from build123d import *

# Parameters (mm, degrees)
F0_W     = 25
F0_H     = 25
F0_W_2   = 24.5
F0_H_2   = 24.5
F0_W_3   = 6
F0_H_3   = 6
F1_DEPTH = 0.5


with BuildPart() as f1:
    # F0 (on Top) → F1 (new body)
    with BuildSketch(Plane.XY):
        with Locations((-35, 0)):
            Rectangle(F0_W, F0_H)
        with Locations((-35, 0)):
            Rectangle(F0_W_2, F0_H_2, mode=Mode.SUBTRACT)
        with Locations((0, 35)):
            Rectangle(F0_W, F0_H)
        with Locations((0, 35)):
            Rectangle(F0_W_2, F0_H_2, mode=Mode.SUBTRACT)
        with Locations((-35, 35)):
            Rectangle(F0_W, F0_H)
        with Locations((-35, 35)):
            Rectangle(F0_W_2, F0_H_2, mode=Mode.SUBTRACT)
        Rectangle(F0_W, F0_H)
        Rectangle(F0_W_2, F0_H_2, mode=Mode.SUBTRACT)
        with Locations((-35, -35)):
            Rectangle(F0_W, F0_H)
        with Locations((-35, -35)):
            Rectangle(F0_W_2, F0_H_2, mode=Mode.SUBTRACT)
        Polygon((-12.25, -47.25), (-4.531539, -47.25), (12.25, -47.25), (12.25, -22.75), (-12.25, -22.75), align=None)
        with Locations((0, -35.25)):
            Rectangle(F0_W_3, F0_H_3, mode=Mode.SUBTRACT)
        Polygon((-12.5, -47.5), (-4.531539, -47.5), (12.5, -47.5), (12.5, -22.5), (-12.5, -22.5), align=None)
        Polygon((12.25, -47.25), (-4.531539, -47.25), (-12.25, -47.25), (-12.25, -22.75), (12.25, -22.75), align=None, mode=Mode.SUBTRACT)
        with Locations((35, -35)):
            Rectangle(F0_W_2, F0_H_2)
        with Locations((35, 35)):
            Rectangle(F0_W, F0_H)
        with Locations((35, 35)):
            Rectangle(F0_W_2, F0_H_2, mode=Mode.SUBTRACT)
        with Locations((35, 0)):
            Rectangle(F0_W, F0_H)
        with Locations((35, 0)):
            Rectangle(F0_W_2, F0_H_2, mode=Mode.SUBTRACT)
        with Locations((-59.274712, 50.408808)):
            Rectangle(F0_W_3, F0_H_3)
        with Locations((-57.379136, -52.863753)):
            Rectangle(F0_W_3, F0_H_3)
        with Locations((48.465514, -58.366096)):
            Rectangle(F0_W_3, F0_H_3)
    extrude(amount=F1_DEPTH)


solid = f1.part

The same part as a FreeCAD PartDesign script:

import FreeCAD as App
import Part
import Sketcher
from FreeCAD import Vector


def add_polygon(sketch, points):
    """Adds a closed chain of lines whose ends are joined by coincident constraints."""
    first, n = sketch.GeometryCount, len(points)
    for a, b in zip(points, points[1:] + points[:1]):
        sketch.addGeometry(Part.LineSegment(App.Vector(*a, 0), App.Vector(*b, 0)), False)
    for i in range(n):
        sketch.addConstraint(Sketcher.Constraint("Coincident", first + i, 2, first + (i + 1) % n, 1))

doc = App.newDocument("Part")
body = doc.addObject("PartDesign::Body", "Body")
body.AllowCompound = True

# Sketch on XY plane
sketch1 = body.newObject("Sketcher::SketchObject", "Sketch")
sketch1.AttachmentSupport = (doc.getObject("XY_Plane"), [""])
sketch1.MapMode = "FlatFace"
add_polygon(sketch1, [(-48, 12), (-48, -12), (-22, -12), (-22, 12)])  # lines 0-3
add_polygon(sketch1, [(-23, -12), (-47, -12), (-47, 12), (-23, 12)])  # lines 4-7
add_polygon(sketch1, [(-12, 48), (-12, 22), (12, 22), (12, 48)])  # lines 8-11
add_polygon(sketch1, [(12, 23), (-12, 23), (-12, 47), (12, 47)])  # lines 12-15
add_polygon(sketch1, [(-48, 48), (-48, 22), (-22, 22), (-22, 48)])  # lines 16-19
add_polygon(sketch1, [(-23, 23), (-47, 23), (-47, 47), (-23, 47)])  # lines 20-23
add_polygon(sketch1, [(-12, 12), (-12, -12), (12, -12), (12, 12)])  # lines 24-27
add_polygon(sketch1, [(12, -12), (-12, -12), (-12, 12), (12, 12)])  # lines 28-31
add_polygon(sketch1, [(-48, -22), (-48, -48), (-22, -48), (-22, -22)])  # lines 32-35
add_polygon(sketch1, [(-23, -47), (-47, -47), (-47, -23), (-23, -23)])  # lines 36-39
add_polygon(sketch1, [(-12, -48), (12, -48), (12, -22), (-12, -22)])  # lines 40-43
add_polygon(sketch1, [(12, -23), (12, -47), (-12, -47), (-12, -23)])  # lines 44-47
add_polygon(sketch1, [(23, -23), (23, -47), (47, -47), (47, -23)])  # lines 48-51
add_polygon(sketch1, [(22, 48), (22, 22), (48, 22), (48, 48)])  # lines 52-55
add_polygon(sketch1, [(47, 23), (23, 23), (23, 47), (47, 47)])  # lines 56-59
add_polygon(sketch1, [(22, 12), (22, -12), (48, -12), (48, 12)])  # lines 60-63
add_polygon(sketch1, [(47, -12), (23, -12), (23, 12), (47, 12)])  # lines 64-67
add_polygon(sketch1, [(-62, 53), (-62, 47), (-56, 47), (-56, 53)])  # lines 68-71
add_polygon(sketch1, [(-60, -50), (-60, -56), (-54, -56), (-54, -50)])  # lines 72-75
add_polygon(sketch1, [(45, -55), (45, -61), (51, -61), (51, -55)])  # lines 76-79
sketch1.addConstraint(Sketcher.Constraint("Vertical", 0))
sketch1.addConstraint(Sketcher.Constraint("Horizontal", 1))
sketch1.addConstraint(Sketcher.Constraint("Vertical", 2))
sketch1.addConstraint(Sketcher.Constraint("Horizontal", 3))
sketch1.addConstraint(Sketcher.Constraint("Horizontal", 4))
sketch1.addConstraint(Sketcher.Constraint("Vertical", 5))
sketch1.addConstraint(Sketcher.Constraint("Horizontal", 6))
sketch1.addConstraint(Sketcher.Constraint("Vertical", 7))
sketch1.addConstraint(Sketcher.Constraint("Vertical", 8))
sketch1.addConstraint(Sketcher.Constraint("Horizontal", 9))
sketch1.addConstraint(Sketcher.Constraint("Vertical", 10))
sketch1.addConstraint(Sketcher.Constraint("Horizontal", 11))
sketch1.addConstraint(Sketcher.Constraint("Horizontal", 12))
sketch1.addConstraint(Sketcher.Constraint("Vertical", 13))
sketch1.addConstraint(Sketcher.Constraint("Horizontal", 14))
sketch1.addConstraint(Sketcher.Constraint("Vertical", 15))
sketch1.addConstraint(Sketcher.Constraint("Vertical", 16))
sketch1.addConstraint(Sketcher.Constraint("Horizontal", 17))
sketch1.addConstraint(Sketcher.Constraint("Vertical", 18))
sketch1.addConstraint(Sketcher.Constraint("Horizontal", 19))
sketch1.addConstraint(Sketcher.Constraint("Horizontal", 20))
sketch1.addConstraint(Sketcher.Constraint("Vertical", 21))
sketch1.addConstraint(Sketcher.Constraint("Horizontal", 22))
sketch1.addConstraint(Sketcher.Constraint("Vertical", 23))
sketch1.addConstraint(Sketcher.Constraint("Vertical", 24))
sketch1.addConstraint(Sketcher.Constraint("Horizontal", 25))
sketch1.addConstraint(Sketcher.Constraint("Vertical", 26))
sketch1.addConstraint(Sketcher.Constraint("Horizontal", 27))
sketch1.addConstraint(Sketcher.Constraint("Horizontal", 28))
sketch1.addConstraint(Sketcher.Constraint("Vertical", 29))
sketch1.addConstraint(Sketcher.Constraint("Horizontal", 30))
sketch1.addConstraint(Sketcher.Constraint("Vertical", 31))
sketch1.addConstraint(Sketcher.Constraint("Vertical", 32))
sketch1.addConstraint(Sketcher.Constraint("Horizontal", 33))
sketch1.addConstraint(Sketcher.Constraint("Vertical", 34))
sketch1.addConstraint(Sketcher.Constraint("Horizontal", 35))
sketch1.addConstraint(Sketcher.Constraint("Horizontal", 36))
sketch1.addConstraint(Sketcher.Constraint("Vertical", 37))
sketch1.addConstraint(Sketcher.Constraint("Horizontal", 38))
sketch1.addConstraint(Sketcher.Constraint("Vertical", 39))
sketch1.addConstraint(Sketcher.Constraint("Horizontal", 40))
sketch1.addConstraint(Sketcher.Constraint("Vertical", 41))
sketch1.addConstraint(Sketcher.Constraint("Horizontal", 42))
sketch1.addConstraint(Sketcher.Constraint("Vertical", 43))
sketch1.addConstraint(Sketcher.Constraint("Vertical", 44))
sketch1.addConstraint(Sketcher.Constraint("Horizontal", 45))
sketch1.addConstraint(Sketcher.Constraint("Vertical", 46))
sketch1.addConstraint(Sketcher.Constraint("Horizontal", 47))
sketch1.addConstraint(Sketcher.Constraint("Vertical", 48))
sketch1.addConstraint(Sketcher.Constraint("Horizontal", 49))
sketch1.addConstraint(Sketcher.Constraint("Vertical", 50))
sketch1.addConstraint(Sketcher.Constraint("Horizontal", 51))
sketch1.addConstraint(Sketcher.Constraint("Vertical", 52))
sketch1.addConstraint(Sketcher.Constraint("Horizontal", 53))
sketch1.addConstraint(Sketcher.Constraint("Vertical", 54))
sketch1.addConstraint(Sketcher.Constraint("Horizontal", 55))
sketch1.addConstraint(Sketcher.Constraint("Horizontal", 56))
sketch1.addConstraint(Sketcher.Constraint("Vertical", 57))
sketch1.addConstraint(Sketcher.Constraint("Horizontal", 58))
sketch1.addConstraint(Sketcher.Constraint("Vertical", 59))
sketch1.addConstraint(Sketcher.Constraint("Vertical", 60))
sketch1.addConstraint(Sketcher.Constraint("Horizontal", 61))
sketch1.addConstraint(Sketcher.Constraint("Vertical", 62))
sketch1.addConstraint(Sketcher.Constraint("Horizontal", 63))
sketch1.addConstraint(Sketcher.Constraint("Horizontal", 64))
sketch1.addConstraint(Sketcher.Constraint("Vertical", 65))
sketch1.addConstraint(Sketcher.Constraint("Horizontal", 66))
sketch1.addConstraint(Sketcher.Constraint("Vertical", 67))
sketch1.addConstraint(Sketcher.Constraint("Vertical", 68))
sketch1.addConstraint(Sketcher.Constraint("Horizontal", 69))
sketch1.addConstraint(Sketcher.Constraint("Vertical", 70))
sketch1.addConstraint(Sketcher.Constraint("Horizontal", 71))
sketch1.addConstraint(Sketcher.Constraint("Vertical", 72))
sketch1.addConstraint(Sketcher.Constraint("Horizontal", 73))
sketch1.addConstraint(Sketcher.Constraint("Vertical", 74))
sketch1.addConstraint(Sketcher.Constraint("Horizontal", 75))
sketch1.addConstraint(Sketcher.Constraint("Vertical", 76))
sketch1.addConstraint(Sketcher.Constraint("Horizontal", 77))
sketch1.addConstraint(Sketcher.Constraint("Vertical", 78))
sketch1.addConstraint(Sketcher.Constraint("Horizontal", 79))
sketch1.addConstraint(Sketcher.Constraint("Symmetric", 24, 2, 26, 2, -1, 1))
sketch1.addConstraint(Sketcher.Constraint("Symmetric", 28, 2, 30, 2, -1, 1))
sketch1.addConstraint(Sketcher.Constraint("Symmetric", 11, 2, 40, 2, -1, 1))
sketch1.addConstraint(Sketcher.Constraint("Symmetric", 9, 2, 42, 2, -1, 1))
sketch1.addConstraint(Sketcher.Constraint("Symmetric", 13, 2, 44, 2, -1, 1))
sketch1.addConstraint(Sketcher.Constraint("Symmetric", 15, 2, 46, 2, -1, 1))
sketch1.addConstraint(Sketcher.Constraint("Symmetric", 22, 2, 48, 2, -1, 1))
sketch1.addConstraint(Sketcher.Constraint("Symmetric", 20, 2, 50, 2, -1, 1))
sketch1.addConstraint(Sketcher.Constraint("Symmetric", 34, 2, 52, 2, -1, 1))
sketch1.addConstraint(Sketcher.Constraint("Symmetric", 32, 2, 54, 2, -1, 1))
sketch1.addConstraint(Sketcher.Constraint("Symmetric", 38, 2, 56, 2, -1, 1))
sketch1.addConstraint(Sketcher.Constraint("Symmetric", 36, 2, 58, 2, -1, 1))
sketch1.addConstraint(Sketcher.Constraint("Symmetric", 2, 2, 60, 2, -1, 1))
sketch1.addConstraint(Sketcher.Constraint("Symmetric", 0, 2, 62, 2, -1, 1))
sketch1.addConstraint(Sketcher.Constraint("Symmetric", 6, 2, 64, 2, -1, 1))
sketch1.addConstraint(Sketcher.Constraint("Symmetric", 4, 2, 66, 2, -1, 1))
sketch1.addConstraint(Sketcher.Constraint("Symmetric", 39, 2, 48, 2, -2))
sketch1.addConstraint(Sketcher.Constraint("Symmetric", 37, 2, 50, 2, -2))
sketch1.addConstraint(Sketcher.Constraint("Symmetric", 17, 2, 52, 2, -2))
sketch1.addConstraint(Sketcher.Constraint("Symmetric", 19, 2, 54, 2, -2))
sketch1.addConstraint(Sketcher.Constraint("Horizontal", 9, 2, 16, 2))
sketch1.addConstraint(Sketcher.Constraint("Horizontal", 11, 2, 18, 2))
sketch1.addConstraint(Sketcher.Constraint("Horizontal", 15, 2, 20, 2))
sketch1.addConstraint(Sketcher.Constraint("Horizontal", 14, 2, 21, 2))
sketch1.addConstraint(Sketcher.Constraint("Horizontal", 1, 2, 24, 2))
sketch1.addConstraint(Sketcher.Constraint("Horizontal", 3, 2, 26, 2))
sketch1.addConstraint(Sketcher.Constraint("Horizontal", 7, 2, 28, 2))
sketch1.addConstraint(Sketcher.Constraint("Horizontal", 6, 2, 29, 2))
sketch1.addConstraint(Sketcher.Constraint("Vertical", 3, 2, 16, 2))
sketch1.addConstraint(Sketcher.Constraint("Vertical", 2, 2, 17, 2))
sketch1.addConstraint(Sketcher.Constraint("Vertical", 5, 2, 20, 2))
sketch1.addConstraint(Sketcher.Constraint("Vertical", 7, 2, 22, 2))
sketch1.addConstraint(Sketcher.Constraint("Vertical", 11, 2, 24, 2))
sketch1.addConstraint(Sketcher.Constraint("Vertical", 10, 2, 25, 2))
sketch1.addConstraint(Sketcher.Constraint("Vertical", 13, 2, 28, 2))
sketch1.addConstraint(Sketcher.Constraint("Vertical", 15, 2, 30, 2))
sketch1.addConstraint(Sketcher.Constraint("Equal", 3, 9))
sketch1.addConstraint(Sketcher.Constraint("Equal", 6, 12))
sketch1.addConstraint(Sketcher.Constraint("Equal", 71, 73))
sketch1.addConstraint(Sketcher.Constraint("Equal", 75, 77))
sketch1.addConstraint(Sketcher.Constraint("Equal", 63, 0))
sketch1.addConstraint(Sketcher.Constraint("Equal", 66, 5))
sketch1.addConstraint(Sketcher.Constraint("Equal", 2, 8))
sketch1.addConstraint(Sketcher.Constraint("Equal", 7, 13))
sketch1.addConstraint(Sketcher.Constraint("Equal", 79, 68))
sketch1.addConstraint(Sketcher.Constraint("Equal", 70, 72))
sketch1.addConstraint(Sketcher.Constraint("Equal", 74, 76))
sketch1.addConstraint(Sketcher.Constraint("DistanceX", 1, 1, 1, 2, 25.0))
sketch1.addConstraint(Sketcher.Constraint("DistanceX", 69, 1, 69, 2, 6.0))
sketch1.addConstraint(Sketcher.Constraint("DistanceX", 4, 2, 4, 1, 24.5))
sketch1.addConstraint(Sketcher.Constraint("DistanceX", 0, 2, -1, 1, 47.5))
sketch1.addConstraint(Sketcher.Constraint("DistanceY", -1, 1, 8, 2, 22.5))
sketch1.addConstraint(Sketcher.Constraint("DistanceX", 4, 2, -1, 1, 47.25))
sketch1.addConstraint(Sketcher.Constraint("DistanceY", -1, 1, 12, 2, 22.75))
sketch1.addConstraint(Sketcher.Constraint("DistanceX", 68, 2, -1, 1, 62.274712))
sketch1.addConstraint(Sketcher.Constraint("DistanceY", -1, 1, 68, 2, 47.408808))
sketch1.addConstraint(Sketcher.Constraint("DistanceX", 72, 2, -1, 1, 60.379136))
sketch1.addConstraint(Sketcher.Constraint("DistanceY", 72, 2, -1, 1, 55.863753))
sketch1.addConstraint(Sketcher.Constraint("DistanceX", -1, 1, 76, 2, 45.465514))
sketch1.addConstraint(Sketcher.Constraint("DistanceY", 76, 2, -1, 1, 61.366096))
pad1 = body.newObject("PartDesign::Pad", "Pad")
pad1.Profile = sketch1
pad1.Length = 0.5

doc.recompute()
